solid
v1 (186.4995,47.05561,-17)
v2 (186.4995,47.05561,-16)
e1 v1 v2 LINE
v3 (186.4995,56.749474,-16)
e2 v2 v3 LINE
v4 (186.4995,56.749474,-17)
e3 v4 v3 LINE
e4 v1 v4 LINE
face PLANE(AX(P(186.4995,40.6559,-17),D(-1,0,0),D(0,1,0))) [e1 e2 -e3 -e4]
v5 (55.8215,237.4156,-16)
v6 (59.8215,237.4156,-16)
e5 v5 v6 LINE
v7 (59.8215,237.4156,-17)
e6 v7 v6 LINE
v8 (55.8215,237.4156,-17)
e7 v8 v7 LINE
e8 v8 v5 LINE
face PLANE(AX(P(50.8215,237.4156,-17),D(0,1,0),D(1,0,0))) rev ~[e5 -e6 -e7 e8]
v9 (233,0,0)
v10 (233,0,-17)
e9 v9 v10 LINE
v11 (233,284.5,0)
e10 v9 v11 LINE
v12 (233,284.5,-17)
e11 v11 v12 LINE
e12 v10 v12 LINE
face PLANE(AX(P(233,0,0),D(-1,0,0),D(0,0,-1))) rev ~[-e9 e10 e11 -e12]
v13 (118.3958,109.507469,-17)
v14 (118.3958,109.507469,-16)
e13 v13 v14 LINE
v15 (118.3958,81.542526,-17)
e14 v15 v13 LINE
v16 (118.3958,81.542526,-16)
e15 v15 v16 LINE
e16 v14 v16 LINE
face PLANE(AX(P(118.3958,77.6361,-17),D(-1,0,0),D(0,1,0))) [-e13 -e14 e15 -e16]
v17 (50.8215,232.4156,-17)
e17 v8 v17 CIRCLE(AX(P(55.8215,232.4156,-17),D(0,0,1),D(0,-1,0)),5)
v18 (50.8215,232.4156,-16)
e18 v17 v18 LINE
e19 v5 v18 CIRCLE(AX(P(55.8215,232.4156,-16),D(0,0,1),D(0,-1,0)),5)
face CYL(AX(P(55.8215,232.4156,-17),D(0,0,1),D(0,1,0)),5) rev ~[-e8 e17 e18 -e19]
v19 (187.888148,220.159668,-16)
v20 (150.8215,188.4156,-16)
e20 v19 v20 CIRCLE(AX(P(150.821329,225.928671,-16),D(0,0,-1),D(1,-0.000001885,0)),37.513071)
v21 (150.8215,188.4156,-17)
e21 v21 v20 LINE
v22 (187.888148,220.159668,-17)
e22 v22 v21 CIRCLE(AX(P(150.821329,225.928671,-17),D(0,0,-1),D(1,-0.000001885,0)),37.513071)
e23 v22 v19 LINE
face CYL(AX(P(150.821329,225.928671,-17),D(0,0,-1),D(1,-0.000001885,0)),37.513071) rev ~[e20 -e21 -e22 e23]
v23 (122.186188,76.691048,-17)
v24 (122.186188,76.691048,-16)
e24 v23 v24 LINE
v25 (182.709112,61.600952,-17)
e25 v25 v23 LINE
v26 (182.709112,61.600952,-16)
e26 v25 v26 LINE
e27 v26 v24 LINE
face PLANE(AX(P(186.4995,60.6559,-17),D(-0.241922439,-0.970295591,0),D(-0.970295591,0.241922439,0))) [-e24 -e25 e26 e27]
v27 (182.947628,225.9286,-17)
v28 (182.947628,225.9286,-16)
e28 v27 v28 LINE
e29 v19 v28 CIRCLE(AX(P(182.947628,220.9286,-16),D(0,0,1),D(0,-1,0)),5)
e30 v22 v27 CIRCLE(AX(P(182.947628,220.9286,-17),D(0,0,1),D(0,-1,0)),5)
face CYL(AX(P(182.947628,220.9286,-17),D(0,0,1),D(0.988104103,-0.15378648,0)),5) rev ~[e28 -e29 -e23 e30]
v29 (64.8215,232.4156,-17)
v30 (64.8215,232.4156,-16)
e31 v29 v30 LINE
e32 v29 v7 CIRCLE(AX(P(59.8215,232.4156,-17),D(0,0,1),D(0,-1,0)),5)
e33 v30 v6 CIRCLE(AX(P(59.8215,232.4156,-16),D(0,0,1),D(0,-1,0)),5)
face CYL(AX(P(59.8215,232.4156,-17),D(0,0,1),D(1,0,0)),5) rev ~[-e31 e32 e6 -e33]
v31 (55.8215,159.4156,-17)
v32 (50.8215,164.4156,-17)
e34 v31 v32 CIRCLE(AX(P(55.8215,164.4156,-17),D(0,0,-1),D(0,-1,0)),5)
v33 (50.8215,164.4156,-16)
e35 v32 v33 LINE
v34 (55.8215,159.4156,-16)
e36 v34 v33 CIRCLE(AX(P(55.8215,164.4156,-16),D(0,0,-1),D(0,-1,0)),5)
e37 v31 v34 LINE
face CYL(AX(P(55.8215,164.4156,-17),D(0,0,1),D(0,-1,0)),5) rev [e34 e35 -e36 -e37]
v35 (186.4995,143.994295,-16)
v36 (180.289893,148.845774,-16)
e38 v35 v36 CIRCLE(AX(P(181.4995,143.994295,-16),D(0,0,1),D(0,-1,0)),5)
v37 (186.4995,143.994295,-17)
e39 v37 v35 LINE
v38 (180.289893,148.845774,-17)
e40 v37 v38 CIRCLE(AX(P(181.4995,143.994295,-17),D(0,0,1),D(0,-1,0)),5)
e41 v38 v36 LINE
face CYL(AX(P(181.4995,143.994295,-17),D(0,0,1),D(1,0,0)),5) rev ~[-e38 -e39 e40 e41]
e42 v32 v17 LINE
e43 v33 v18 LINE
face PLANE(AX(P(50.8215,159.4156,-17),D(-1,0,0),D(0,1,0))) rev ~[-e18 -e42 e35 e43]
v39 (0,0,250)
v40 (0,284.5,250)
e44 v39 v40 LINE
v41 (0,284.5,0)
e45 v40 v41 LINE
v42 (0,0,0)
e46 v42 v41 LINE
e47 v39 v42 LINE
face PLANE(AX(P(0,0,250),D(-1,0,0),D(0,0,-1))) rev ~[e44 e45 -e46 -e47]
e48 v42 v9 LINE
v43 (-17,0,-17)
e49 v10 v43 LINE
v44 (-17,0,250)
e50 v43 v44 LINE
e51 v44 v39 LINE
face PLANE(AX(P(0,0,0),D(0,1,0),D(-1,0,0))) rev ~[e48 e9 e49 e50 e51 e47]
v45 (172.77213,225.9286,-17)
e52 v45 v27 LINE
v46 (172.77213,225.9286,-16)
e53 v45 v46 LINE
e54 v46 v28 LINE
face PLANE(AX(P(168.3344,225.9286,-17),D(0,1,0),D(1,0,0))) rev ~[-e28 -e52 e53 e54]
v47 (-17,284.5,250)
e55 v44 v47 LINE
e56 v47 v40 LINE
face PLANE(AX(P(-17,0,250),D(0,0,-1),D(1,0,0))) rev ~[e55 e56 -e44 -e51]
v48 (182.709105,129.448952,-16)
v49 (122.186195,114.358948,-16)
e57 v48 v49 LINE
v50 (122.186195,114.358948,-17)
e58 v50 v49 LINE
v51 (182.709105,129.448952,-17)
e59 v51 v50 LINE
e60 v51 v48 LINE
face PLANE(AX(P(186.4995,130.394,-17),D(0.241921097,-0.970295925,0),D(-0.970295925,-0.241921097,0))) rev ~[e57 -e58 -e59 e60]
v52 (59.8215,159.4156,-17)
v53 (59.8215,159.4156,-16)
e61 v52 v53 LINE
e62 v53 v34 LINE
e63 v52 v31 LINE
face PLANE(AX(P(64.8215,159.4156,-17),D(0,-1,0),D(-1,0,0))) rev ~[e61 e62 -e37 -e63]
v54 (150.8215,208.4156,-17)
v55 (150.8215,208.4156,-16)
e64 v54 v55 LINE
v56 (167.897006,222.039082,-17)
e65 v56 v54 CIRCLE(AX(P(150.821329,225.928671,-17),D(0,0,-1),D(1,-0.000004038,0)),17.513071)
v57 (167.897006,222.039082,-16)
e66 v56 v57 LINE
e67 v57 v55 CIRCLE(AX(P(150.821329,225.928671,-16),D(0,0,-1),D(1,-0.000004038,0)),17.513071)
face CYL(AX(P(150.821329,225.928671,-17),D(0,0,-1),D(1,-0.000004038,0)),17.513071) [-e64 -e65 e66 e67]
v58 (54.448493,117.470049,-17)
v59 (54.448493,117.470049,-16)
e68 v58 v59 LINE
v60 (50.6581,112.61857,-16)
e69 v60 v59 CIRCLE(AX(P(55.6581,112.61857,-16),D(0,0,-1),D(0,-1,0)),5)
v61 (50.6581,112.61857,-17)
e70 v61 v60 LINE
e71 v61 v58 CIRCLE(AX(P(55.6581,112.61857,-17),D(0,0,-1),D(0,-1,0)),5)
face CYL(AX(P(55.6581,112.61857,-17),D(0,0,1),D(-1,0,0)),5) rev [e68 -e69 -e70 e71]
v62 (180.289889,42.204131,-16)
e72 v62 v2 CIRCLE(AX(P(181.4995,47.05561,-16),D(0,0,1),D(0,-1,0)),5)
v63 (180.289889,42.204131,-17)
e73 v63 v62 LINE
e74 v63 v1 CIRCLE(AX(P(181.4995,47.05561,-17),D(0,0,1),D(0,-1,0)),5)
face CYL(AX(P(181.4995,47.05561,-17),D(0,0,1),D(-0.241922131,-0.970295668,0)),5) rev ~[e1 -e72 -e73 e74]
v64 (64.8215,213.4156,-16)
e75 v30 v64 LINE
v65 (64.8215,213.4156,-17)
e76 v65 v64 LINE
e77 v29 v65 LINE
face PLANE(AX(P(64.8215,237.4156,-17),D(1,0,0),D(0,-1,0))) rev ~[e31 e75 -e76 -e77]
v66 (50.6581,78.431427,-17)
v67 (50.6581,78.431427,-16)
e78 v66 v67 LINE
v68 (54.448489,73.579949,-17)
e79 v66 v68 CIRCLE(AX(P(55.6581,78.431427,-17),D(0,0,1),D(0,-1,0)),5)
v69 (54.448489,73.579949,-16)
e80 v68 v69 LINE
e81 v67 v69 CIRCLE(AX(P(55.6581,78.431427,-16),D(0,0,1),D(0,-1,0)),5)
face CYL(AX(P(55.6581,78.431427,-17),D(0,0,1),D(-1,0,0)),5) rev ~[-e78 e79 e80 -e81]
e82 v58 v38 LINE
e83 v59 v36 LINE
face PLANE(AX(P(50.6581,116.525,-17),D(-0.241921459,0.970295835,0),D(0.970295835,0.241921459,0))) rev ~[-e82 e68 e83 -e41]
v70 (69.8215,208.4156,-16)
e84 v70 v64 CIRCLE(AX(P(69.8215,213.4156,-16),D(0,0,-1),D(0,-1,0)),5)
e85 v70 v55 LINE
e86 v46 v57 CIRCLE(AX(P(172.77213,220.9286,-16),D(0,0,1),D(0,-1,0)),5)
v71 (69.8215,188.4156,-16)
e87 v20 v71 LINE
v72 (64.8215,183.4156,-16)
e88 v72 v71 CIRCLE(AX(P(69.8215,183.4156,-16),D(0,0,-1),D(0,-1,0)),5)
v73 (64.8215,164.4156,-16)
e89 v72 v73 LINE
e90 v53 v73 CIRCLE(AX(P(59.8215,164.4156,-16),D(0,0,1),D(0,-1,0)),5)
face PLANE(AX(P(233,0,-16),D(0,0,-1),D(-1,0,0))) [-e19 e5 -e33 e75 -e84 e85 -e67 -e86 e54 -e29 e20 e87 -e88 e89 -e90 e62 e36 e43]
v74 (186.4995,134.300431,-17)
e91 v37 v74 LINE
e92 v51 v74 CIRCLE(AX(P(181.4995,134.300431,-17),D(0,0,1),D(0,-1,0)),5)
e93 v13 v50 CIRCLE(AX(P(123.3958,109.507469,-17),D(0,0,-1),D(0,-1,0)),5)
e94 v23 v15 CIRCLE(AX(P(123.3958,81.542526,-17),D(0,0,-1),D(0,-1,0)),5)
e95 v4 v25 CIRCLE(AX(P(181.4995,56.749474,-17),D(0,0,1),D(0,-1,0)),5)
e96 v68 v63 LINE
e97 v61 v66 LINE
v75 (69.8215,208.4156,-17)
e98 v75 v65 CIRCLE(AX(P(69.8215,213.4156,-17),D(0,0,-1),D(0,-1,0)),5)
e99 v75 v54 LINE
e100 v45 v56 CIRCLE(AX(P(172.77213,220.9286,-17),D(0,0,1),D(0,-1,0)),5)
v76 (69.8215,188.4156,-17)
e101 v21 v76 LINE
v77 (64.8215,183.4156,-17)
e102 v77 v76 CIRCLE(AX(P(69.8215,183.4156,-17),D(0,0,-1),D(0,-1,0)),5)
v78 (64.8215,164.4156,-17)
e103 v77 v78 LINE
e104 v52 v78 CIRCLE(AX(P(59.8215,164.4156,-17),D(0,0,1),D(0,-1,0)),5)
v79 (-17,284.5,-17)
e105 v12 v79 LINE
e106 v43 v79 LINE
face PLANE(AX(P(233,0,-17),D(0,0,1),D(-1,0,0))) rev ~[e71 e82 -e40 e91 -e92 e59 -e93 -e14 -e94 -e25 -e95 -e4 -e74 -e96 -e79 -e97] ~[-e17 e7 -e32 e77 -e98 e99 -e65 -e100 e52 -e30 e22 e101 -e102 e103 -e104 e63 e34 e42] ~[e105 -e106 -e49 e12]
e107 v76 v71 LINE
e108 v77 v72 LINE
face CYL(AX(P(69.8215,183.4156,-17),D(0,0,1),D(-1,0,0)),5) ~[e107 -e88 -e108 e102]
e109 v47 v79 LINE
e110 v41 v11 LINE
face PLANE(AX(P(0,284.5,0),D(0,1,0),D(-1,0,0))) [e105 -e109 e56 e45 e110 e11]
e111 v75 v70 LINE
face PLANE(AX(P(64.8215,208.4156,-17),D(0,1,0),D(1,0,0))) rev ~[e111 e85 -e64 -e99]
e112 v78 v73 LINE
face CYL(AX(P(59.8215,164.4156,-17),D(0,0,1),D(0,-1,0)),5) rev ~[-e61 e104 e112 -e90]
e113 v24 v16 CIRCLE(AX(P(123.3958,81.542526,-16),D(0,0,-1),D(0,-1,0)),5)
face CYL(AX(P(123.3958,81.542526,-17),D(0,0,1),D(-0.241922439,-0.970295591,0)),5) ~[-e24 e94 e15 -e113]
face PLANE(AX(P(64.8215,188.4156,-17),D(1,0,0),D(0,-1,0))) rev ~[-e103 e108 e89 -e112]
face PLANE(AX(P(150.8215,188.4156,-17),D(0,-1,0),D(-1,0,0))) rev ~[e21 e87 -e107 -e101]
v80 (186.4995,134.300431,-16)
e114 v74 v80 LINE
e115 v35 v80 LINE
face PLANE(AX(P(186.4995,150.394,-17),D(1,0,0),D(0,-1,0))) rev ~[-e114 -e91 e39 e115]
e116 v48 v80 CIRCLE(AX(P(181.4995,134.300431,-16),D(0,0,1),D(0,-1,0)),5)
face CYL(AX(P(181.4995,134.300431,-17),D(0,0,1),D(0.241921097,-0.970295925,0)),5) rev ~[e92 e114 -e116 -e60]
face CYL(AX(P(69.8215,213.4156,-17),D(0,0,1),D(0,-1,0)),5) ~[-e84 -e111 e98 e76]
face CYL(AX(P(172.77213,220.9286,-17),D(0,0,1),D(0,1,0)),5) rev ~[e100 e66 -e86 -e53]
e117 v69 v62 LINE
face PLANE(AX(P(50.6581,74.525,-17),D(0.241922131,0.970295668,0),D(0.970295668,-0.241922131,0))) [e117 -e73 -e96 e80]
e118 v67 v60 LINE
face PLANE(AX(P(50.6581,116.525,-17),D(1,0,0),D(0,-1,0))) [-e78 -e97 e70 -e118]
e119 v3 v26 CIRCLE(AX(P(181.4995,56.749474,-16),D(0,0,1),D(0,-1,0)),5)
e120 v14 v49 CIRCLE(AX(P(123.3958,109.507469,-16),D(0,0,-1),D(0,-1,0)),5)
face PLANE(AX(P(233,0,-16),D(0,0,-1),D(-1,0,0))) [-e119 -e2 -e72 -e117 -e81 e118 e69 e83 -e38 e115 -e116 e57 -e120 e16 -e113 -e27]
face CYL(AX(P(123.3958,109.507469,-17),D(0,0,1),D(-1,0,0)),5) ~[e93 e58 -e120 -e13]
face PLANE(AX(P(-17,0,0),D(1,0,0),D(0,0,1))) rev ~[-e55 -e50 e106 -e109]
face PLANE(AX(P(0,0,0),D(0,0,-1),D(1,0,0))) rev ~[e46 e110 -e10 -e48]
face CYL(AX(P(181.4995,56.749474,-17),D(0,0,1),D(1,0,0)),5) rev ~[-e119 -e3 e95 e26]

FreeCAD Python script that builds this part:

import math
import FreeCAD as App
import Part
import Sketcher
Q = App.Units.Quantity


def edges_at(feature, points):
    """Names of the edges that pass closest to the given points."""
    edges = feature.Shape.Edges
    near = lambda p: min(range(len(edges)), key=lambda i: edges[i].distToShape(Part.Vertex(*p))[0])
    return sorted({f"Edge{near(p) + 1}" for p in points})


def add_polygon(sketch, points):
    """Adds a closed chain of lines whose ends are joined by coincident constraints."""
    first, n = sketch.GeometryCount, len(points)
    for a, b in zip(points, points[1:] + points[:1]):
        sketch.addGeometry(Part.LineSegment(App.Vector(*a, 0), App.Vector(*b, 0)), False)
    for i in range(n):
        sketch.addConstraint(Sketcher.Constraint("Coincident", first + i, 2, first + (i + 1) % n, 1))

doc = App.newDocument("Part")
body = doc.addObject("PartDesign::Body", "Body")

# Sketch on XZ plane
sketch1 = body.newObject("Sketcher::SketchObject", "Sketch")
sketch1.AttachmentSupport = (doc.getObject("XZ_Plane"), [""])
sketch1.MapMode = "FlatFace"
add_polygon(sketch1, [(-17, 250), (0, 250), (0, 0), (233, 0), (233, -17), (-17, -17)])  # lines 0-5
sketch1.addConstraint(Sketcher.Constraint("Horizontal", 0))
sketch1.addConstraint(Sketcher.Constraint("Vertical", 1))
sketch1.addConstraint(Sketcher.Constraint("Horizontal", 2))
sketch1.addConstraint(Sketcher.Constraint("Vertical", 3))
sketch1.addConstraint(Sketcher.Constraint("Horizontal", 4))
sketch1.addConstraint(Sketcher.Constraint("Vertical", 5))
sketch1.addConstraint(Sketcher.Constraint("Coincident", 1, 2, -1, 1))
sketch1.addConstraint(Sketcher.Constraint("Equal", 4, 1))
sketch1.addConstraint(Sketcher.Constraint("Equal", 0, 3))
sketch1.addConstraint(Sketcher.Constraint("DistanceX", 0, 1, 0, 2, Q("17 mm")))
sketch1.addConstraint(Sketcher.Constraint("DistanceX", 4, 2, 4, 1, Q("250 mm")))
pad1 = body.newObject("PartDesign::Pad", "Pad")
pad1.Profile = sketch1
pad1.Length = 284.5
pad1.Reversed = True

# Sketch on XY plane
sketch2 = body.newObject("Sketcher::SketchObject", "Sketch001")
sketch2.AttachmentSupport = (doc.getObject("XY_Plane"), [""])
sketch2.MapMode = "FlatFace"
sketch2.AttachmentOffset = App.Placement(App.Vector(0, 0, -17), App.Rotation())
sketch2.addGeometry(Part.LineSegment(App.Vector(50.8215, 159.4156, 0), App.Vector(50.8215, 237.4156, 0)), False)  # 0
sketch2.addGeometry(Part.LineSegment(App.Vector(50.8215, 237.4156, 0), App.Vector(64.8215, 237.4156, 0)), False)  # 1
sketch2.addGeometry(Part.LineSegment(App.Vector(64.8215, 237.4156, 0), App.Vector(64.8215, 208.4156, 0)), False)  # 2
sketch2.addGeometry(Part.LineSegment(App.Vector(64.8215, 208.4156, 0), App.Vector(150.8215, 208.4156, 0)), False)  # 3
sketch2.addGeometry(Part.ArcOfCircle(Part.Circle(App.Vector(150.8215, 225.9286, 0), App.Vector(0, 0, 1), 17.5129), math.radians(-90), math.radians(0)), False)  # 4
sketch2.addGeometry(Part.LineSegment(App.Vector(168.3344, 225.9286, 0), App.Vector(188.3344, 225.9286, 0)), False)  # 5
sketch2.addGeometry(Part.ArcOfCircle(Part.Circle(App.Vector(150.8215, 225.9286, 0), App.Vector(0, 0, 1), 37.5129), math.radians(-90), math.radians(0)), False)  # 6
sketch2.addGeometry(Part.LineSegment(App.Vector(150.8215, 188.4156, 0), App.Vector(64.8215, 188.4156, 0)), False)  # 7
sketch2.addGeometry(Part.LineSegment(App.Vector(64.8215, 188.4156, 0), App.Vector(64.8215, 159.4156, 0)), False)  # 8
sketch2.addGeometry(Part.LineSegment(App.Vector(64.8215, 159.4156, 0), App.Vector(50.8215, 159.4156, 0)), False)  # 9
add_polygon(sketch2, [(50.6581, 74.525), (50.6581, 116.525), (186.4995, 150.394), (186.4995, 130.394), (118.3958, 113.4139), (118.3958, 77.6361), (186.4995, 60.6559), (186.4995, 40.6559)])  # lines 10-17
sketch2.addConstraint(Sketcher.Constraint("Coincident", 0, 2, 1, 1))
sketch2.addConstraint(Sketcher.Constraint("Coincident", 1, 2, 2, 1))
sketch2.addConstraint(Sketcher.Constraint("Coincident", 2, 2, 3, 1))
sketch2.addConstraint(Sketcher.Constraint("Tangent", 3, 2, 4, 1))
sketch2.addConstraint(Sketcher.Constraint("Coincident", 4, 2, 5, 1))
sketch2.addConstraint(Sketcher.Constraint("Coincident", 5, 2, 6, 2))
sketch2.addConstraint(Sketcher.Constraint("Tangent", 6, 1, 7, 1))
sketch2.addConstraint(Sketcher.Constraint("Coincident", 7, 2, 8, 1))
sketch2.addConstraint(Sketcher.Constraint("Coincident", 8, 2, 9, 1))
sketch2.addConstraint(Sketcher.Constraint("Coincident", 9, 2, 0, 1))
sketch2.addConstraint(Sketcher.Constraint("Vertical", 0))
sketch2.addConstraint(Sketcher.Constraint("Horizontal", 1))
sketch2.addConstraint(Sketcher.Constraint("Vertical", 2))
sketch2.addConstraint(Sketcher.Constraint("Horizontal", 3))
sketch2.addConstraint(Sketcher.Constraint("Horizontal", 5))
sketch2.addConstraint(Sketcher.Constraint("Horizontal", 7))
sketch2.addConstraint(Sketcher.Constraint("Vertical", 8))
sketch2.addConstraint(Sketcher.Constraint("Horizontal", 9))
sketch2.addConstraint(Sketcher.Constraint("Vertical", 10))
sketch2.addConstraint(Sketcher.Constraint("Vertical", 12))
sketch2.addConstraint(Sketcher.Constraint("Vertical", 14))
sketch2.addConstraint(Sketcher.Constraint("Vertical", 16))
sketch2.addConstraint(Sketcher.Constraint("Coincident", 6, 3, 4, 3))
sketch2.addConstraint(Sketcher.Constraint("Parallel", 11, 13))
sketch2.addConstraint(Sketcher.Constraint("Parallel", 15, 17))
sketch2.addConstraint(Sketcher.Constraint("Horizontal", 6, 3, 4, 2))
sketch2.addConstraint(Sketcher.Constraint("Vertical", 2, 2, 7, 2))
sketch2.addConstraint(Sketcher.Constraint("Vertical", 12, 2, 15, 2))
sketch2.addConstraint(Sketcher.Constraint("Equal", 2, 8))
sketch2.addConstraint(Sketcher.Constraint("Equal", 5, 12))
sketch2.addConstraint(Sketcher.Constraint("Equal", 12, 16))
sketch2.addConstraint(Sketcher.Constraint("Equal", 13, 15))
sketch2.addConstraint(Sketcher.Constraint("DistanceX", 1, 1, 1, 2, Q("14 mm")))
sketch2.addConstraint(Sketcher.Constraint("DistanceX", 3, 1, 3, 2, Q("86 mm")))
sketch2.addConstraint(Sketcher.Constraint("DistanceX", 5, 1, 5, 2, Q("20 mm")))
sketch2.addConstraint(Sketcher.Constraint("DistanceY", 0, 1, 0, 2, Q("78 mm")))
sketch2.addConstraint(Sketcher.Constraint("Angle", 11, Q("14 deg")))
sketch2.addConstraint(Sketcher.Constraint("Distance", 11, Q("140 mm")))
sketch2.addConstraint(Sketcher.Constraint("DistanceY", 10, 1, 10, 2, Q("42 mm")))
sketch2.addConstraint(Sketcher.Constraint("Radius", 4, Q("17.513 mm")))
sketch2.addConstraint(Sketcher.Constraint("DistanceX", 13, 2, 12, 2, Q("68.1037 mm")))
sketch2.addConstraint(Sketcher.Constraint("DistanceX", -1, 1, 10, 2, Q("50.658 mm")))
sketch2.addConstraint(Sketcher.Constraint("DistanceY", -1, 1, 10, 2, Q("116.525 mm")))
sketch2.addConstraint(Sketcher.Constraint("DistanceX", 6, 1, 11, 2, Q("35.678 mm")))
sketch2.addConstraint(Sketcher.Constraint("DistanceY", -1, 1, 4, 3, Q("225.9286 mm")))
pocket1 = body.newObject("PartDesign::Pocket", "Pocket")
pocket1.Profile = sketch2
pocket1.Length = 1
pocket1.Reversed = True
doc.recompute()

fillet = body.newObject("PartDesign::Fillet", "Fillet")
fillet.Base = (pocket1, edges_at(pocket1, [
    (50.658, 116.525, -16.5),
    (50.658, 74.525, -16.5),
    (50.822, 159.416, -16.5),
    (64.822, 188.416, -16.5),
    (118.396, 113.414, -16.5),
    (118.396, 77.636, -16.5),
    (186.5, 40.656, -16.5),
    (186.5, 60.656, -16.5),
    (186.5, 130.394, -16.5),
    (186.5, 150.394, -16.5),
    (168.334, 225.929, -16.5),
    (188.334, 225.929, -16.5),
    (64.822, 237.416, -16.5),
    (50.822, 237.416, -16.5),
    (64.822, 159.416, -16.5),
    (64.822, 208.416, -16.5),
]))
fillet.Radius = 5

doc.recompute()
